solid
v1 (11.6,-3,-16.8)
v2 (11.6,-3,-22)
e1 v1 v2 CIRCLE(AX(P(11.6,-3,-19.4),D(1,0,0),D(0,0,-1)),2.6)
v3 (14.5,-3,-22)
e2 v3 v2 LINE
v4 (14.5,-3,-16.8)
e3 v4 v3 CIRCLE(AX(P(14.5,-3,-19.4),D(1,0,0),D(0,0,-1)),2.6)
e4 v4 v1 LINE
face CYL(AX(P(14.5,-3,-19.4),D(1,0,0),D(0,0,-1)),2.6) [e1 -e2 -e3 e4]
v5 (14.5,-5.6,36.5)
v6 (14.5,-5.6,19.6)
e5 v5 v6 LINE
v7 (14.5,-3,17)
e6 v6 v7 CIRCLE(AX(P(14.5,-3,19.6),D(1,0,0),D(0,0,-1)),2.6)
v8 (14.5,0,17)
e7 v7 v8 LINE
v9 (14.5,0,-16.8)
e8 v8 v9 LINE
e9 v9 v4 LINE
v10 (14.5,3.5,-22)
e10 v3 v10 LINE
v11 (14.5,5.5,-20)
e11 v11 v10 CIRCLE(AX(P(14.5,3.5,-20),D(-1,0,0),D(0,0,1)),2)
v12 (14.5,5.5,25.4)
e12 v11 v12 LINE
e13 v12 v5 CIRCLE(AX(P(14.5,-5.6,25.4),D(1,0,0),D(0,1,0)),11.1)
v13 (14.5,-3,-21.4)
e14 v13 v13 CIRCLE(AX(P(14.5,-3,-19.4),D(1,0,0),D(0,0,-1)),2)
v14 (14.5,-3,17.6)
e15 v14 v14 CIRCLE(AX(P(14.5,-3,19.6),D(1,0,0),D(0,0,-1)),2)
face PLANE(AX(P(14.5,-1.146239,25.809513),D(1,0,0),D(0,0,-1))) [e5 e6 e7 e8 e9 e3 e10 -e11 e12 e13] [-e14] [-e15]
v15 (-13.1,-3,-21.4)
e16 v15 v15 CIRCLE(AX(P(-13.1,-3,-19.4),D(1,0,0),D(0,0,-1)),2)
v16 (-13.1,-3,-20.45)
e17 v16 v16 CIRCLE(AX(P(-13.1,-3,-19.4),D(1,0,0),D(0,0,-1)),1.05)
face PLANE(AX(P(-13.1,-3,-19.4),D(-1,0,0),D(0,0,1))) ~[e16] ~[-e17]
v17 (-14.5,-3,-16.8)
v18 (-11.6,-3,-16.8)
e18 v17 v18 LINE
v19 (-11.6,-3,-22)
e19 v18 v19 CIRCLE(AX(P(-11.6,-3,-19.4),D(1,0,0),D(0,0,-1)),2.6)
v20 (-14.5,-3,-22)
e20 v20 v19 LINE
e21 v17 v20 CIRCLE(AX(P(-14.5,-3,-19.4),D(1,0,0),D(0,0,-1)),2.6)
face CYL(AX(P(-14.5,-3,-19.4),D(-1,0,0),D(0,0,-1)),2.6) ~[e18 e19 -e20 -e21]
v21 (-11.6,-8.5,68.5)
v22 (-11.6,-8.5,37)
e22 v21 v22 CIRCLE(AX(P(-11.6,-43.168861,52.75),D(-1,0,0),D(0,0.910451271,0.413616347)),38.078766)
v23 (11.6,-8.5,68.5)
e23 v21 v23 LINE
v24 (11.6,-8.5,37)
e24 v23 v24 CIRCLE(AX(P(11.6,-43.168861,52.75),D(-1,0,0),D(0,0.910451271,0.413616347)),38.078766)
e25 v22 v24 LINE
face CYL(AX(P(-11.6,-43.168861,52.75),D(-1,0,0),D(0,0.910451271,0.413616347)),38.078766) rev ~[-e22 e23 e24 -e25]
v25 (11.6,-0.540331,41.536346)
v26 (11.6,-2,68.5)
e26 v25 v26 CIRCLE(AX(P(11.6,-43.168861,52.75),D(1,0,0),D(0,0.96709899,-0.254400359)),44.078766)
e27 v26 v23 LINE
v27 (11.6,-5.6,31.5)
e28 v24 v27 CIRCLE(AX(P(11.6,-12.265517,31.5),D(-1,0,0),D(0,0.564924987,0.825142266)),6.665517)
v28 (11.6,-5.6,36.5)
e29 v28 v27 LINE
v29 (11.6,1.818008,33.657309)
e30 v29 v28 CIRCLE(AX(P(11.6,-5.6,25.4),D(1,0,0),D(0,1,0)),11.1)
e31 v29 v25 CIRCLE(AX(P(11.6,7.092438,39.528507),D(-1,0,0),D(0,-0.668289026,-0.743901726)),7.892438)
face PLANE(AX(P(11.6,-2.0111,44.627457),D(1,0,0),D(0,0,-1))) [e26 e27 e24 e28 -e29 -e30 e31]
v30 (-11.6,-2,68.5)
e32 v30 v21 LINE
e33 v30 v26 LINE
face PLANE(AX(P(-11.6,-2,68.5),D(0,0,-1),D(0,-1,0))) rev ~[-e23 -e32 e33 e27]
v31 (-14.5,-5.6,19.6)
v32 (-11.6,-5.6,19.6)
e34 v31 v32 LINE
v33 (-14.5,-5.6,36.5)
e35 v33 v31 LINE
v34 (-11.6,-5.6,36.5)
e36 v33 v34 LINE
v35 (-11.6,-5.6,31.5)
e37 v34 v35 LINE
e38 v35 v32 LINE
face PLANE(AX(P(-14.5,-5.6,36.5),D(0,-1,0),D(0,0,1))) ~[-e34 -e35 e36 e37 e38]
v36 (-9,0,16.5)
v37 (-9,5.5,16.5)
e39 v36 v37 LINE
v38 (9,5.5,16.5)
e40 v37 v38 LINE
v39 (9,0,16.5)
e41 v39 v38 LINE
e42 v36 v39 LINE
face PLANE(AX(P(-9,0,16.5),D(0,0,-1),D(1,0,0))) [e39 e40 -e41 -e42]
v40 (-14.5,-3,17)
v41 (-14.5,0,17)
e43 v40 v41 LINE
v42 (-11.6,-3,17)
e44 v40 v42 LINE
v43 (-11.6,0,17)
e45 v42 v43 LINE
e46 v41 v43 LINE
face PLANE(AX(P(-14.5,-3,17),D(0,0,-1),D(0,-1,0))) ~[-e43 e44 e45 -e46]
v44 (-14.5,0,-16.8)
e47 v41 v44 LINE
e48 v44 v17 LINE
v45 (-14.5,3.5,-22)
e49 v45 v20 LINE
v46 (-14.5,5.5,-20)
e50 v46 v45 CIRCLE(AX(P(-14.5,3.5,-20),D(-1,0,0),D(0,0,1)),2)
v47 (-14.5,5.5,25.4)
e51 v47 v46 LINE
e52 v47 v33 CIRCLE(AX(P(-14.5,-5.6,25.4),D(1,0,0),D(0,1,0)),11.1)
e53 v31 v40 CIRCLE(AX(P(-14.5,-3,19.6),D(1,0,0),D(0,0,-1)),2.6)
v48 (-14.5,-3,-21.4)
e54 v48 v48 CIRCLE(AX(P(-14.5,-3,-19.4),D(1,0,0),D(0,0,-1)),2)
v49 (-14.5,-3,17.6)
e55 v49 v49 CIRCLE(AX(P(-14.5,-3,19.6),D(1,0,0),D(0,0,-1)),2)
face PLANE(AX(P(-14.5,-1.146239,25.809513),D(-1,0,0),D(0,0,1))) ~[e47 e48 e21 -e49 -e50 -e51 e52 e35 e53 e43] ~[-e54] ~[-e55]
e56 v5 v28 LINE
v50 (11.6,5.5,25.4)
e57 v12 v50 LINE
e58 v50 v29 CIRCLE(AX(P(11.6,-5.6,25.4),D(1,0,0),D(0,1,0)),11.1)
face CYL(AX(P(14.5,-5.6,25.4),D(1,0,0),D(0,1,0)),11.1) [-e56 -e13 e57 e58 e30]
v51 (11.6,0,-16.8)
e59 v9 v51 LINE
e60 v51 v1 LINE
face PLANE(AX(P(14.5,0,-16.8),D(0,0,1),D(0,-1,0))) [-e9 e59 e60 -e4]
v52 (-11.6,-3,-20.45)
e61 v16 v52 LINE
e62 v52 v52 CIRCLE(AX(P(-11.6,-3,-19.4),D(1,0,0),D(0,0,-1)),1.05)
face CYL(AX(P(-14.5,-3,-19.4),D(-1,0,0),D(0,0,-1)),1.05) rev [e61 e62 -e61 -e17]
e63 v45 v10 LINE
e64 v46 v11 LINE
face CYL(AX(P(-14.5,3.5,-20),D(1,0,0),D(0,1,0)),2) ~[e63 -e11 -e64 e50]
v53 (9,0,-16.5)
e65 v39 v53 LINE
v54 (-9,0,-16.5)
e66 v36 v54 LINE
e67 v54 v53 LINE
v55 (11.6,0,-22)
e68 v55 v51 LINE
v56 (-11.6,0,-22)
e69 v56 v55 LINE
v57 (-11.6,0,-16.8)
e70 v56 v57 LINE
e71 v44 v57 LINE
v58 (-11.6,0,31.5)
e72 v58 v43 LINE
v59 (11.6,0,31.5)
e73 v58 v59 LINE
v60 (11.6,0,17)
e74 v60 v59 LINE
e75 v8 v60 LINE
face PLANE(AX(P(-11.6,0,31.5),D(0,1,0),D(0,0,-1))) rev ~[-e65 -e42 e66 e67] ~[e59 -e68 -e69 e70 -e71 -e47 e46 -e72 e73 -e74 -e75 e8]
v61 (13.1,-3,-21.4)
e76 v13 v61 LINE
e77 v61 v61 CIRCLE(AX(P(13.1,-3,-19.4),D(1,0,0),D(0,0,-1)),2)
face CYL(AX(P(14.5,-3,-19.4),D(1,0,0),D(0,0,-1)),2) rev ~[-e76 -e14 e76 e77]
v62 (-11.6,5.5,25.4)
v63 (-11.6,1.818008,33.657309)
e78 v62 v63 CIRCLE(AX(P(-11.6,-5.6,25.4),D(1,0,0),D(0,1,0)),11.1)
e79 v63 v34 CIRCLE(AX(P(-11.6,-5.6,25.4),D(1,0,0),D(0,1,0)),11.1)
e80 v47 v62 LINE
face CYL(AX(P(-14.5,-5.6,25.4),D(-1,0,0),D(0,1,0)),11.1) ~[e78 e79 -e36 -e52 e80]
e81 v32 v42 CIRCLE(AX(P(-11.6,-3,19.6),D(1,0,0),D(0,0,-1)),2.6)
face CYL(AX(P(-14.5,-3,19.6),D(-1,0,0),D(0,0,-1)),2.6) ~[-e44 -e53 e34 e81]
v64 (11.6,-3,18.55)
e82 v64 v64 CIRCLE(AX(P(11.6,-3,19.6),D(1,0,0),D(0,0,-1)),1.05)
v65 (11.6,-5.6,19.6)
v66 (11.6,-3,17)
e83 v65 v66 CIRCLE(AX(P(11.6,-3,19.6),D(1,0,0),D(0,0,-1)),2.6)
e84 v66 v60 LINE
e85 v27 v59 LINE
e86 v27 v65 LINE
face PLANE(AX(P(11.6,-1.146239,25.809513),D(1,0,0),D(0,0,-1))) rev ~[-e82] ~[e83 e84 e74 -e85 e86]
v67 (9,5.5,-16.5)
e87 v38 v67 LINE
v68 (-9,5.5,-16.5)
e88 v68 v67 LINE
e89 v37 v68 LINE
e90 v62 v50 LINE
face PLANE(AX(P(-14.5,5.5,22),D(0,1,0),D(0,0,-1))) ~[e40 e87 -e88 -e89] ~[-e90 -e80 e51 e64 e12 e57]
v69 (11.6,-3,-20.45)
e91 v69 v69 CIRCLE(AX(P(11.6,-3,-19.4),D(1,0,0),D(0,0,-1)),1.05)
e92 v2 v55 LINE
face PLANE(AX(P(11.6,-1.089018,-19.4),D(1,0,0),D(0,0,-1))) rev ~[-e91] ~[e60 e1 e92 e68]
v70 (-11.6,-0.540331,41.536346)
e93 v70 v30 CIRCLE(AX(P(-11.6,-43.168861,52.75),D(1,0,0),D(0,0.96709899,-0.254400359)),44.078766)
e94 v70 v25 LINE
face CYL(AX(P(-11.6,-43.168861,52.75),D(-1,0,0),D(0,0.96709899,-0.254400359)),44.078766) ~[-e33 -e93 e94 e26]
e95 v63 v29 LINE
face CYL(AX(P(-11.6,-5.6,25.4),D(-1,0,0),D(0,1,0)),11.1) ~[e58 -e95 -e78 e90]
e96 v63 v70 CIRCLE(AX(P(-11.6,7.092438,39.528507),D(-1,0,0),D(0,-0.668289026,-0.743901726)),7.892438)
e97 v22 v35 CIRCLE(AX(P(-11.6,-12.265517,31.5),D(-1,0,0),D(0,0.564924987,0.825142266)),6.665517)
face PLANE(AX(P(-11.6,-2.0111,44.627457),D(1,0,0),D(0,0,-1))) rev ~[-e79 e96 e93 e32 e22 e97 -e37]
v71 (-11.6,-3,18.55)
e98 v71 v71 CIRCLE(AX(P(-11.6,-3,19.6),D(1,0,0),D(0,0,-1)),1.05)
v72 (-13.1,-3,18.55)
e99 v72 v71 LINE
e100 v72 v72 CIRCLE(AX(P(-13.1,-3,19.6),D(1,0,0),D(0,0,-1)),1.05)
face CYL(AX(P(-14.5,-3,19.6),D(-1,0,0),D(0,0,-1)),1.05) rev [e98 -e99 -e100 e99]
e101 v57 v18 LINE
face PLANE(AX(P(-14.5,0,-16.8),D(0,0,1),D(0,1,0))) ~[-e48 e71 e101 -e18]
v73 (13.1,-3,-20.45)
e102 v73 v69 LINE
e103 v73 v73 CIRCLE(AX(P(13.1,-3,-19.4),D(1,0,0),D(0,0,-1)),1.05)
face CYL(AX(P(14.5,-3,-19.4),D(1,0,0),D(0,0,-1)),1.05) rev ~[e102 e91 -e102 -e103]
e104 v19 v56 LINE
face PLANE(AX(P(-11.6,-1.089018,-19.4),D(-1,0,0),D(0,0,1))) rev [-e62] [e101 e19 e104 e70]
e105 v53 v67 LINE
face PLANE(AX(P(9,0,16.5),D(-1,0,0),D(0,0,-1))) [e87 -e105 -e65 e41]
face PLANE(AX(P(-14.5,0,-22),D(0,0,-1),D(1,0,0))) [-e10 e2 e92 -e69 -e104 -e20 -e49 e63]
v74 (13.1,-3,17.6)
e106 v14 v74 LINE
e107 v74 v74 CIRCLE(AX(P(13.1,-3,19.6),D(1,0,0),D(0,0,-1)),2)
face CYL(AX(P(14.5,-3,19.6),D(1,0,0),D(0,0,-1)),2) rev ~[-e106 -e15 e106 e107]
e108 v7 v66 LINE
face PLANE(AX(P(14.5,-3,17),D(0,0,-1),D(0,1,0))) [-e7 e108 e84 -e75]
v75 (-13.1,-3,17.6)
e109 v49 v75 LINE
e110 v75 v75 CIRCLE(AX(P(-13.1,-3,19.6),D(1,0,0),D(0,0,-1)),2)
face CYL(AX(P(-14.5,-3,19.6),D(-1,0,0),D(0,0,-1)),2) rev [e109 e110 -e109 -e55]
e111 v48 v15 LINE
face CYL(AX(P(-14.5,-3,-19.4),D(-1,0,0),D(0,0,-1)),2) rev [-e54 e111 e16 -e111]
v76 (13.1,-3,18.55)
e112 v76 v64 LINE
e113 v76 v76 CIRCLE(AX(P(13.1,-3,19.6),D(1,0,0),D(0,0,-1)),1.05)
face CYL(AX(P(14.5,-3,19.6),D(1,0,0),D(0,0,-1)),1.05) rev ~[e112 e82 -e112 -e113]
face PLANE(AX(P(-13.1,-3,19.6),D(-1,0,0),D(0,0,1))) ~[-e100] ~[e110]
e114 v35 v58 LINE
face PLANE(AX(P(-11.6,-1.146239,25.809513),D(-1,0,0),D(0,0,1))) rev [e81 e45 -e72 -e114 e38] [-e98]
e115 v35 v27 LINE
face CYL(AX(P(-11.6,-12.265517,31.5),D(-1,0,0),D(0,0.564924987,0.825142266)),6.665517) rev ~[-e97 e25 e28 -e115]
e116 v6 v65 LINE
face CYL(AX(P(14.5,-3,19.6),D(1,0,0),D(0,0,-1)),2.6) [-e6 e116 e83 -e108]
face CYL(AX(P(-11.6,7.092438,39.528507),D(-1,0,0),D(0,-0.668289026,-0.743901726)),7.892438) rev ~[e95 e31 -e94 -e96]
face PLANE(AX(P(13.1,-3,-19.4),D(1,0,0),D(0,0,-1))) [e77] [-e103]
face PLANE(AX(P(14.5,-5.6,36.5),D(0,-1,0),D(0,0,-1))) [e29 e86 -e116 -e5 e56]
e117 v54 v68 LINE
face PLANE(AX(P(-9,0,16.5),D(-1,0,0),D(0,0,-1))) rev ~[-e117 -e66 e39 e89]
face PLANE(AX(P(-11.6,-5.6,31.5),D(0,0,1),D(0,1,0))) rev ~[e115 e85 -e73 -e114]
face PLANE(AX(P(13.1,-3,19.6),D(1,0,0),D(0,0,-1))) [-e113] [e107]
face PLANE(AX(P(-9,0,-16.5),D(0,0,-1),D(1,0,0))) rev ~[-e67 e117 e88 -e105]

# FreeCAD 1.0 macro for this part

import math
import FreeCAD as App
import Part
import Sketcher
Q = App.Units.Quantity


def edges_at(feature, points):
    """Names of the edges that pass closest to the given points."""
    edges = feature.Shape.Edges
    near = lambda p: min(range(len(edges)), key=lambda i: edges[i].distToShape(Part.Vertex(*p))[0])
    return sorted({f"Edge{near(p) + 1}" for p in points})


def add_polygon(sketch, points):
    """Adds a closed chain of lines whose ends are joined by coincident constraints."""
    first, n = sketch.GeometryCount, len(points)
    for a, b in zip(points, points[1:] + points[:1]):
        sketch.addGeometry(Part.LineSegment(App.Vector(*a, 0), App.Vector(*b, 0)), False)
    for i in range(n):
        sketch.addConstraint(Sketcher.Constraint("Coincident", first + i, 2, first + (i + 1) % n, 1))

doc = App.newDocument("Part")
body = doc.addObject("PartDesign::Body", "Body")

sketch1 = body.newObject("Sketcher::SketchObject", "Sketch")
sketch1.AttachmentSupport = (doc.getObject("XZ_Plane"), [""])
sketch1.MapMode = "FlatFace"
add_polygon(sketch1, [(-14, -22), (-14, 22), (14, 22), (14, -22)])
add_polygon(sketch1, [(9, 16), (-9, 16), (-9, -16), (9, -16)])
sketch1.addConstraint([
    Sketcher.Constraint("Vertical", 0),
    Sketcher.Constraint("Horizontal", 1),
    Sketcher.Constraint("Vertical", 2),
    Sketcher.Constraint("Horizontal", 3),
    Sketcher.Constraint("Horizontal", 4),
    Sketcher.Constraint("Vertical", 5),
    Sketcher.Constraint("Horizontal", 6),
    Sketcher.Constraint("Vertical", 7),
    Sketcher.Constraint("Symmetric", 0, 2, 2, 2, -1, 1),
    Sketcher.Constraint("Symmetric", 4, 2, 6, 2, -1, 1),
    Sketcher.Constraint("DistanceX", 1, 1, 1, 2, Q("29 mm")),
    Sketcher.Constraint("DistanceX", 4, 2, 4, 1, Q("18 mm")),
    Sketcher.Constraint("DistanceY", 0, 1, 0, 2, Q("44 mm")),
    Sketcher.Constraint("DistanceY", 5, 2, 5, 1, Q("33 mm")),
])
pad1 = body.newObject("PartDesign::Pad", "Pad")
pad1.Profile = sketch1
pad1.Length = 5.5
pad1.Reversed = True

sketch2 = body.newObject("Sketcher::SketchObject", "Sketch001")
sketch2.AttachmentSupport = (doc.getObject("YZ_Plane"), [""])
sketch2.MapMode = "FlatFace"
sketch2.AttachmentOffset = App.Placement(App.Vector(0, 0, 14.5), App.Rotation())
sketch2.addGeometry([
    Part.LineSegment(App.Vector(-3, 17, 0), App.Vector(0, 17, 0)),
    Part.LineSegment(App.Vector(0, 17, 0), App.Vector(0, 22, 0)),
    Part.LineSegment(App.Vector(0, 22, 0), App.Vector(5.5, 22, 0)),
    Part.LineSegment(App.Vector(5.5, 22, 0), App.Vector(5.5, 25.4, 0)),
    Part.ArcOfCircle(Part.Circle(App.Vector(-5.6, 25.4, 0), App.Vector(0, 0, 1), 11.1), math.radians(0), math.radians(90)),
    Part.LineSegment(App.Vector(-5.6, 36.5, 0), App.Vector(-5.6, 19.6, 0)),
    Part.ArcOfCircle(Part.Circle(App.Vector(-3, 19.6, 0), App.Vector(0, 0, 1), 2.6), math.radians(180), math.radians(270)),
    Part.Circle(App.Vector(-3, 19.6, 0), App.Vector(0, 0, 1), 1.1),
    Part.ArcOfCircle(Part.Circle(App.Vector(-3, -19.4, 0), App.Vector(0, 0, 1), 2.6), math.radians(90), math.radians(270)),
    Part.LineSegment(App.Vector(-3, -22, 0), App.Vector(0, -22, 0)),
    Part.LineSegment(App.Vector(0, -22, 0), App.Vector(0, -16.8, 0)),
    Part.LineSegment(App.Vector(0, -16.8, 0), App.Vector(-3, -16.8, 0)),
    Part.Circle(App.Vector(-3, -19.4, 0), App.Vector(0, 0, 1), 1.1),
], False)
sketch2.addConstraint([
    Sketcher.Constraint("Coincident", 0, 2, 1, 1),
    Sketcher.Constraint("Coincident", 1, 2, 2, 1),
    Sketcher.Constraint("Coincident", 2, 2, 3, 1),
    Sketcher.Constraint("Tangent", 3, 2, 4, 1),
    Sketcher.Constraint("Coincident", 4, 2, 5, 1),
    Sketcher.Constraint("Tangent", 5, 2, 6, 1),
    Sketcher.Constraint("Tangent", 6, 2, 0, 1),
    Sketcher.Constraint("Tangent", 8, 2, 9, 1),
    Sketcher.Constraint("Coincident", 9, 2, 10, 1),
    Sketcher.Constraint("Coincident", 10, 2, 11, 1),
    Sketcher.Constraint("Tangent", 11, 2, 8, 1),
    Sketcher.Constraint("Horizontal", 0),
    Sketcher.Constraint("Vertical", 1),
    Sketcher.Constraint("Horizontal", 2),
    Sketcher.Constraint("Vertical", 3),
    Sketcher.Constraint("Vertical", 5),
    Sketcher.Constraint("Horizontal", 9),
    Sketcher.Constraint("Vertical", 10),
    Sketcher.Constraint("Horizontal", 11),
    Sketcher.Constraint("Coincident", 7, 3, 6, 3),
    Sketcher.Constraint("Coincident", 12, 3, 8, 3),
    Sketcher.Constraint("Equal", 6, 8),
    Sketcher.Constraint("Equal", 7, 12),
    Sketcher.Constraint("Symmetric", 1, 2, 9, 2, -1, 1),
    Sketcher.Constraint("PointOnObject", 0, 2, -2),
    Sketcher.Constraint("Vertical", 7, 3, 8, 3),
    Sketcher.Constraint("Diameter", 7, Q("2.1 mm")),
    Sketcher.Constraint("Radius", 4, Q("11.1 mm")),
    Sketcher.Constraint("Radius", 6, Q("2.6 mm")),
    Sketcher.Constraint("DistanceX", 0, 1, 0, 2, Q("3 mm")),
    Sketcher.Constraint("DistanceY", 1, 1, 1, 2, Q("5 mm")),
    Sketcher.Constraint("DistanceX", 2, 1, 2, 2, Q("5.5 mm")),
    Sketcher.Constraint("DistanceY", 3, 1, 3, 2, Q("3.4 mm")),
    Sketcher.Constraint("DistanceY", -1, 1, 0, 2, Q("17 mm")),
])
pad2 = body.newObject("PartDesign::Pad", "Pad001")
pad2.Profile = sketch2
pad2.Length = 2.9
pad2.Reversed = True

sketch3 = body.newObject("Sketcher::SketchObject", "Sketch002")
sketch3.AttachmentSupport = (doc.getObject("YZ_Plane"), [""])
sketch3.MapMode = "FlatFace"
sketch3.AttachmentOffset = App.Placement(App.Vector(0, 0, 14.5), App.Rotation())
sketch3.addGeometry([
    Part.Circle(App.Vector(-3, 19.6, 0), App.Vector(0, 0, 1), 2),
    Part.Circle(App.Vector(-3, 19.6, 0), App.Vector(0, 0, 1), 1.1),
    Part.Circle(App.Vector(-3, -19.4, 0), App.Vector(0, 0, 1), 2),
    Part.Circle(App.Vector(-3, -19.4, 0), App.Vector(0, 0, 1), 1.1),
], False)
sketch3.addConstraint([
    Sketcher.Constraint("Coincident", 1, 3, 0, 3),
    Sketcher.Constraint("Coincident", 3, 3, 2, 3),
    Sketcher.Constraint("Equal", 0, 2),
    Sketcher.Constraint("Equal", 1, 3),
    Sketcher.Constraint("Vertical", 1, 3, 2, 3),
    Sketcher.Constraint("Diameter", 0, Q("4 mm")),
    Sketcher.Constraint("Diameter", 1, Q("2.1 mm")),
    Sketcher.Constraint("DistanceX", 0, 3, -1, 1, Q("3 mm")),
    Sketcher.Constraint("DistanceY", 2, 3, 0, 3, Q("39 mm")),
    Sketcher.Constraint("DistanceY", -1, 1, 0, 3, Q("19.6 mm")),
])
pocket1 = body.newObject("PartDesign::Pocket", "Pocket")
pocket1.Profile = sketch3
pocket1.Length = 1.4
doc.recompute()

mirrored = body.newObject("PartDesign::Mirrored", "Mirrored")
mirrored.Originals = [pad2, pocket1]
mirrored.MirrorPlane = (doc.getObject("YZ_Plane"), [""])
body.Tip = mirrored

sketch4 = body.newObject("Sketcher::SketchObject", "Sketch003")
sketch4.AttachmentSupport = (doc.getObject("YZ_Plane"), [""])
sketch4.MapMode = "FlatFace"
sketch4.AttachmentOffset = App.Placement(App.Vector(0, 0, -11.6), App.Rotation())
sketch4.addGeometry([
    Part.LineSegment(App.Vector(0, 31.5, 0), App.Vector(0, 22, 0)),
    Part.LineSegment(App.Vector(0, 22, 0), App.Vector(5.5, 22, 0)),
    Part.LineSegment(App.Vector(5.5, 22, 0), App.Vector(5.5, 25.4, 0)),
    Part.ArcOfCircle(Part.Circle(App.Vector(-5.6, 25.4, 0), App.Vector(0, 0, 1), 11.1), math.radians(0), math.radians(48)),
    Part.ArcOfCircle(Part.Circle(App.Vector(7.1, 39.5, 0), App.Vector(0, 0, 1), 7.9), math.radians(165), math.radians(228)),
    Part.ArcOfCircle(Part.Circle(App.Vector(-43.2, 52.7, 0), App.Vector(0, 0, 1), 44.1), math.radians(-15), math.radians(21)),
    Part.LineSegment(App.Vector(-2, 68.5, 0), App.Vector(-8.5, 68.5, 0)),
    Part.ArcOfCircle(Part.Circle(App.Vector(-43.2, 52.8, 0), App.Vector(0, 0, 1), 38.1), math.radians(-24), math.radians(24)),
    Part.ArcOfCircle(Part.Circle(App.Vector(-12.3, 31.5, 0), App.Vector(0, 0, 1), 6.7), math.radians(0), math.radians(56)),
    Part.LineSegment(App.Vector(-5.6, 31.5, 0), App.Vector(0, 31.5, 0)),
], False)
sketch4.addConstraint([
    Sketcher.Constraint("Coincident", 0, 2, 1, 1),
    Sketcher.Constraint("Coincident", 1, 2, 2, 1),
    Sketcher.Constraint("Tangent", 2, 2, 3, 1),
    Sketcher.Constraint("Tangent", 3, 2, 4, 2),
    Sketcher.Constraint("Tangent", 4, 1, 5, 1),
    Sketcher.Constraint("Coincident", 5, 2, 6, 1),
    Sketcher.Constraint("Coincident", 6, 2, 7, 2),
    Sketcher.Constraint("Coincident", 7, 1, 8, 2),
    Sketcher.Constraint("Coincident", 8, 1, 9, 1),
    Sketcher.Constraint("Coincident", 9, 2, 0, 1),
    Sketcher.Constraint("Vertical", 0),
    Sketcher.Constraint("Horizontal", 1),
    Sketcher.Constraint("Vertical", 2),
    Sketcher.Constraint("Horizontal", 6),
    Sketcher.Constraint("Horizontal", 9),
    Sketcher.Constraint("Coincident", 7, 3, 5, 3),
    Sketcher.Constraint("PointOnObject", 0, 2, -2),
    Sketcher.Constraint("Vertical", 6, 2, 7, 1),
    Sketcher.Constraint("Vertical", 3, 3, 8, 1),
    Sketcher.Constraint("Radius", 3, Q("11.1 mm")),
    Sketcher.Constraint("DistanceX", 1, 1, 1, 2, Q("5.5 mm")),
    Sketcher.Constraint("DistanceX", 6, 2, 6, 1, Q("6.5 mm")),
    Sketcher.Constraint("DistanceY", 0, 2, 0, 1, Q("9.5 mm")),
    Sketcher.Constraint("DistanceY", 2, 1, 2, 2, Q("3.4 mm")),
    Sketcher.Constraint("DistanceY", -1, 1, 0, 2, Q("22 mm")),
    Sketcher.Constraint("DistanceX", 5, 2, -1, 1, Q("2 mm")),
    Sketcher.Constraint("DistanceY", -1, 1, 7, 1, Q("37 mm")),
    Sketcher.Constraint("DistanceY", 8, 3, 5, 2, Q("37 mm")),
    Sketcher.Constraint("DistanceY", -1, 1, 8, 3, Q("31.5 mm")),
    Sketcher.Constraint("Radius", 4, Q("7.892438 mm")),
    Sketcher.Constraint("Radius", 5, Q("44.078766 mm")),
])
pad3 = body.newObject("PartDesign::Pad", "Pad002")
pad3.Profile = sketch4
pad3.Length = 23.2
doc.recompute()

fillet = body.newObject("PartDesign::Fillet", "Fillet")
fillet.Base = (pad3, edges_at(pad3, [(0, 5.5, -22)]))
fillet.Radius = 2

doc.recompute()
